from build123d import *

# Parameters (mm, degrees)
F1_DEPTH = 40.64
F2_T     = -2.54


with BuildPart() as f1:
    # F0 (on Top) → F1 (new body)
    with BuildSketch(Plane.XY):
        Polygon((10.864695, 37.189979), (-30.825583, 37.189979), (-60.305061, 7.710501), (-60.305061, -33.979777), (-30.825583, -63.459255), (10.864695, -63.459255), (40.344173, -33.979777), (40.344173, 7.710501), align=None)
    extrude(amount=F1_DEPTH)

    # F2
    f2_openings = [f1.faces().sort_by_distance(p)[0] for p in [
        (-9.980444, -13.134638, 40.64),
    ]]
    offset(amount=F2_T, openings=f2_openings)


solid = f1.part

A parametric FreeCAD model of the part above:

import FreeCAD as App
import Part
import Sketcher
from FreeCAD import Vector
Q = App.Units.Quantity


def faces_at(feature, points):
    """Names of the faces that lie closest to the given points."""
    faces = feature.Shape.Faces
    near = lambda p: min(range(len(faces)), key=lambda i: faces[i].distToShape(Part.Vertex(*p))[0])
    return sorted({f"Face{near(p) + 1}" for p in points})


def add_polygon(sketch, points):
    """Adds a closed chain of lines whose ends are joined by coincident constraints."""
    first, n = sketch.GeometryCount, len(points)
    for a, b in zip(points, points[1:] + points[:1]):
        sketch.addGeometry(Part.LineSegment(App.Vector(*a, 0), App.Vector(*b, 0)), False)
    for i in range(n):
        sketch.addConstraint(Sketcher.Constraint("Coincident", first + i, 2, first + (i + 1) % n, 1))

doc = App.newDocument("Part")
body = doc.addObject("PartDesign::Body", "Body")

# Sketch on XY plane
sketch1 = body.newObject("Sketcher::SketchObject", "Sketch")
sketch1.AttachmentSupport = (doc.getObject("XY_Plane"), [""])
sketch1.MapMode = "FlatFace"
add_polygon(sketch1, [(10.864695, 37.189979), (-30.825583, 37.189979), (-60.305061, 7.710501), (-60.305061, -33.979777), (-30.825583, -63.459255), (10.864695, -63.459255), (40.344173, -33.979777), (40.344173, 7.710501)])  # lines 0-7
sketch1.addConstraint([
    Sketcher.Constraint("Horizontal", 0),
    Sketcher.Constraint("Vertical", 2),
    Sketcher.Constraint("Horizontal", 4),
    Sketcher.Constraint("Vertical", 6),
    Sketcher.Constraint("Perpendicular", 1, 3),
    Sketcher.Constraint("Perpendicular", 3, 5),
    Sketcher.Constraint("Perpendicular", 5, 7),
    Sketcher.Constraint("Horizontal", 2, 2, 5, 2),
    Sketcher.Constraint("Horizontal", 1, 2, 6, 2),
    Sketcher.Constraint("Vertical", 0, 2, 3, 2),
    Sketcher.Constraint("Vertical", 4, 2, 7, 2),
    Sketcher.Constraint("Equal", 4, 2),
    Sketcher.Constraint("DistanceY", -1, 1, 1, 2, Q("7.710501 mm")),
    Sketcher.Constraint("DistanceX", 0, 2, 0, 1, Q("41.690278 mm")),
    Sketcher.Constraint("DistanceY", -1, 1, 0, 2, Q("37.189979 mm")),
    Sketcher.Constraint("DistanceX", 1, 2, -1, 1, Q("60.305061 mm")),
])
pad1 = body.newObject("PartDesign::Pad", "Pad")
pad1.Profile = sketch1
pad1.Length = Q("1.6 in")
doc.recompute()

thickness = body.newObject("PartDesign::Thickness", "Thickness")
thickness.Base = (pad1, faces_at(pad1, [(-9.98, -13.135, 40.64)]))
thickness.Value = Q("0.1 in")
thickness.Reversed = True
thickness.Join = "Arc"

doc.recompute()
